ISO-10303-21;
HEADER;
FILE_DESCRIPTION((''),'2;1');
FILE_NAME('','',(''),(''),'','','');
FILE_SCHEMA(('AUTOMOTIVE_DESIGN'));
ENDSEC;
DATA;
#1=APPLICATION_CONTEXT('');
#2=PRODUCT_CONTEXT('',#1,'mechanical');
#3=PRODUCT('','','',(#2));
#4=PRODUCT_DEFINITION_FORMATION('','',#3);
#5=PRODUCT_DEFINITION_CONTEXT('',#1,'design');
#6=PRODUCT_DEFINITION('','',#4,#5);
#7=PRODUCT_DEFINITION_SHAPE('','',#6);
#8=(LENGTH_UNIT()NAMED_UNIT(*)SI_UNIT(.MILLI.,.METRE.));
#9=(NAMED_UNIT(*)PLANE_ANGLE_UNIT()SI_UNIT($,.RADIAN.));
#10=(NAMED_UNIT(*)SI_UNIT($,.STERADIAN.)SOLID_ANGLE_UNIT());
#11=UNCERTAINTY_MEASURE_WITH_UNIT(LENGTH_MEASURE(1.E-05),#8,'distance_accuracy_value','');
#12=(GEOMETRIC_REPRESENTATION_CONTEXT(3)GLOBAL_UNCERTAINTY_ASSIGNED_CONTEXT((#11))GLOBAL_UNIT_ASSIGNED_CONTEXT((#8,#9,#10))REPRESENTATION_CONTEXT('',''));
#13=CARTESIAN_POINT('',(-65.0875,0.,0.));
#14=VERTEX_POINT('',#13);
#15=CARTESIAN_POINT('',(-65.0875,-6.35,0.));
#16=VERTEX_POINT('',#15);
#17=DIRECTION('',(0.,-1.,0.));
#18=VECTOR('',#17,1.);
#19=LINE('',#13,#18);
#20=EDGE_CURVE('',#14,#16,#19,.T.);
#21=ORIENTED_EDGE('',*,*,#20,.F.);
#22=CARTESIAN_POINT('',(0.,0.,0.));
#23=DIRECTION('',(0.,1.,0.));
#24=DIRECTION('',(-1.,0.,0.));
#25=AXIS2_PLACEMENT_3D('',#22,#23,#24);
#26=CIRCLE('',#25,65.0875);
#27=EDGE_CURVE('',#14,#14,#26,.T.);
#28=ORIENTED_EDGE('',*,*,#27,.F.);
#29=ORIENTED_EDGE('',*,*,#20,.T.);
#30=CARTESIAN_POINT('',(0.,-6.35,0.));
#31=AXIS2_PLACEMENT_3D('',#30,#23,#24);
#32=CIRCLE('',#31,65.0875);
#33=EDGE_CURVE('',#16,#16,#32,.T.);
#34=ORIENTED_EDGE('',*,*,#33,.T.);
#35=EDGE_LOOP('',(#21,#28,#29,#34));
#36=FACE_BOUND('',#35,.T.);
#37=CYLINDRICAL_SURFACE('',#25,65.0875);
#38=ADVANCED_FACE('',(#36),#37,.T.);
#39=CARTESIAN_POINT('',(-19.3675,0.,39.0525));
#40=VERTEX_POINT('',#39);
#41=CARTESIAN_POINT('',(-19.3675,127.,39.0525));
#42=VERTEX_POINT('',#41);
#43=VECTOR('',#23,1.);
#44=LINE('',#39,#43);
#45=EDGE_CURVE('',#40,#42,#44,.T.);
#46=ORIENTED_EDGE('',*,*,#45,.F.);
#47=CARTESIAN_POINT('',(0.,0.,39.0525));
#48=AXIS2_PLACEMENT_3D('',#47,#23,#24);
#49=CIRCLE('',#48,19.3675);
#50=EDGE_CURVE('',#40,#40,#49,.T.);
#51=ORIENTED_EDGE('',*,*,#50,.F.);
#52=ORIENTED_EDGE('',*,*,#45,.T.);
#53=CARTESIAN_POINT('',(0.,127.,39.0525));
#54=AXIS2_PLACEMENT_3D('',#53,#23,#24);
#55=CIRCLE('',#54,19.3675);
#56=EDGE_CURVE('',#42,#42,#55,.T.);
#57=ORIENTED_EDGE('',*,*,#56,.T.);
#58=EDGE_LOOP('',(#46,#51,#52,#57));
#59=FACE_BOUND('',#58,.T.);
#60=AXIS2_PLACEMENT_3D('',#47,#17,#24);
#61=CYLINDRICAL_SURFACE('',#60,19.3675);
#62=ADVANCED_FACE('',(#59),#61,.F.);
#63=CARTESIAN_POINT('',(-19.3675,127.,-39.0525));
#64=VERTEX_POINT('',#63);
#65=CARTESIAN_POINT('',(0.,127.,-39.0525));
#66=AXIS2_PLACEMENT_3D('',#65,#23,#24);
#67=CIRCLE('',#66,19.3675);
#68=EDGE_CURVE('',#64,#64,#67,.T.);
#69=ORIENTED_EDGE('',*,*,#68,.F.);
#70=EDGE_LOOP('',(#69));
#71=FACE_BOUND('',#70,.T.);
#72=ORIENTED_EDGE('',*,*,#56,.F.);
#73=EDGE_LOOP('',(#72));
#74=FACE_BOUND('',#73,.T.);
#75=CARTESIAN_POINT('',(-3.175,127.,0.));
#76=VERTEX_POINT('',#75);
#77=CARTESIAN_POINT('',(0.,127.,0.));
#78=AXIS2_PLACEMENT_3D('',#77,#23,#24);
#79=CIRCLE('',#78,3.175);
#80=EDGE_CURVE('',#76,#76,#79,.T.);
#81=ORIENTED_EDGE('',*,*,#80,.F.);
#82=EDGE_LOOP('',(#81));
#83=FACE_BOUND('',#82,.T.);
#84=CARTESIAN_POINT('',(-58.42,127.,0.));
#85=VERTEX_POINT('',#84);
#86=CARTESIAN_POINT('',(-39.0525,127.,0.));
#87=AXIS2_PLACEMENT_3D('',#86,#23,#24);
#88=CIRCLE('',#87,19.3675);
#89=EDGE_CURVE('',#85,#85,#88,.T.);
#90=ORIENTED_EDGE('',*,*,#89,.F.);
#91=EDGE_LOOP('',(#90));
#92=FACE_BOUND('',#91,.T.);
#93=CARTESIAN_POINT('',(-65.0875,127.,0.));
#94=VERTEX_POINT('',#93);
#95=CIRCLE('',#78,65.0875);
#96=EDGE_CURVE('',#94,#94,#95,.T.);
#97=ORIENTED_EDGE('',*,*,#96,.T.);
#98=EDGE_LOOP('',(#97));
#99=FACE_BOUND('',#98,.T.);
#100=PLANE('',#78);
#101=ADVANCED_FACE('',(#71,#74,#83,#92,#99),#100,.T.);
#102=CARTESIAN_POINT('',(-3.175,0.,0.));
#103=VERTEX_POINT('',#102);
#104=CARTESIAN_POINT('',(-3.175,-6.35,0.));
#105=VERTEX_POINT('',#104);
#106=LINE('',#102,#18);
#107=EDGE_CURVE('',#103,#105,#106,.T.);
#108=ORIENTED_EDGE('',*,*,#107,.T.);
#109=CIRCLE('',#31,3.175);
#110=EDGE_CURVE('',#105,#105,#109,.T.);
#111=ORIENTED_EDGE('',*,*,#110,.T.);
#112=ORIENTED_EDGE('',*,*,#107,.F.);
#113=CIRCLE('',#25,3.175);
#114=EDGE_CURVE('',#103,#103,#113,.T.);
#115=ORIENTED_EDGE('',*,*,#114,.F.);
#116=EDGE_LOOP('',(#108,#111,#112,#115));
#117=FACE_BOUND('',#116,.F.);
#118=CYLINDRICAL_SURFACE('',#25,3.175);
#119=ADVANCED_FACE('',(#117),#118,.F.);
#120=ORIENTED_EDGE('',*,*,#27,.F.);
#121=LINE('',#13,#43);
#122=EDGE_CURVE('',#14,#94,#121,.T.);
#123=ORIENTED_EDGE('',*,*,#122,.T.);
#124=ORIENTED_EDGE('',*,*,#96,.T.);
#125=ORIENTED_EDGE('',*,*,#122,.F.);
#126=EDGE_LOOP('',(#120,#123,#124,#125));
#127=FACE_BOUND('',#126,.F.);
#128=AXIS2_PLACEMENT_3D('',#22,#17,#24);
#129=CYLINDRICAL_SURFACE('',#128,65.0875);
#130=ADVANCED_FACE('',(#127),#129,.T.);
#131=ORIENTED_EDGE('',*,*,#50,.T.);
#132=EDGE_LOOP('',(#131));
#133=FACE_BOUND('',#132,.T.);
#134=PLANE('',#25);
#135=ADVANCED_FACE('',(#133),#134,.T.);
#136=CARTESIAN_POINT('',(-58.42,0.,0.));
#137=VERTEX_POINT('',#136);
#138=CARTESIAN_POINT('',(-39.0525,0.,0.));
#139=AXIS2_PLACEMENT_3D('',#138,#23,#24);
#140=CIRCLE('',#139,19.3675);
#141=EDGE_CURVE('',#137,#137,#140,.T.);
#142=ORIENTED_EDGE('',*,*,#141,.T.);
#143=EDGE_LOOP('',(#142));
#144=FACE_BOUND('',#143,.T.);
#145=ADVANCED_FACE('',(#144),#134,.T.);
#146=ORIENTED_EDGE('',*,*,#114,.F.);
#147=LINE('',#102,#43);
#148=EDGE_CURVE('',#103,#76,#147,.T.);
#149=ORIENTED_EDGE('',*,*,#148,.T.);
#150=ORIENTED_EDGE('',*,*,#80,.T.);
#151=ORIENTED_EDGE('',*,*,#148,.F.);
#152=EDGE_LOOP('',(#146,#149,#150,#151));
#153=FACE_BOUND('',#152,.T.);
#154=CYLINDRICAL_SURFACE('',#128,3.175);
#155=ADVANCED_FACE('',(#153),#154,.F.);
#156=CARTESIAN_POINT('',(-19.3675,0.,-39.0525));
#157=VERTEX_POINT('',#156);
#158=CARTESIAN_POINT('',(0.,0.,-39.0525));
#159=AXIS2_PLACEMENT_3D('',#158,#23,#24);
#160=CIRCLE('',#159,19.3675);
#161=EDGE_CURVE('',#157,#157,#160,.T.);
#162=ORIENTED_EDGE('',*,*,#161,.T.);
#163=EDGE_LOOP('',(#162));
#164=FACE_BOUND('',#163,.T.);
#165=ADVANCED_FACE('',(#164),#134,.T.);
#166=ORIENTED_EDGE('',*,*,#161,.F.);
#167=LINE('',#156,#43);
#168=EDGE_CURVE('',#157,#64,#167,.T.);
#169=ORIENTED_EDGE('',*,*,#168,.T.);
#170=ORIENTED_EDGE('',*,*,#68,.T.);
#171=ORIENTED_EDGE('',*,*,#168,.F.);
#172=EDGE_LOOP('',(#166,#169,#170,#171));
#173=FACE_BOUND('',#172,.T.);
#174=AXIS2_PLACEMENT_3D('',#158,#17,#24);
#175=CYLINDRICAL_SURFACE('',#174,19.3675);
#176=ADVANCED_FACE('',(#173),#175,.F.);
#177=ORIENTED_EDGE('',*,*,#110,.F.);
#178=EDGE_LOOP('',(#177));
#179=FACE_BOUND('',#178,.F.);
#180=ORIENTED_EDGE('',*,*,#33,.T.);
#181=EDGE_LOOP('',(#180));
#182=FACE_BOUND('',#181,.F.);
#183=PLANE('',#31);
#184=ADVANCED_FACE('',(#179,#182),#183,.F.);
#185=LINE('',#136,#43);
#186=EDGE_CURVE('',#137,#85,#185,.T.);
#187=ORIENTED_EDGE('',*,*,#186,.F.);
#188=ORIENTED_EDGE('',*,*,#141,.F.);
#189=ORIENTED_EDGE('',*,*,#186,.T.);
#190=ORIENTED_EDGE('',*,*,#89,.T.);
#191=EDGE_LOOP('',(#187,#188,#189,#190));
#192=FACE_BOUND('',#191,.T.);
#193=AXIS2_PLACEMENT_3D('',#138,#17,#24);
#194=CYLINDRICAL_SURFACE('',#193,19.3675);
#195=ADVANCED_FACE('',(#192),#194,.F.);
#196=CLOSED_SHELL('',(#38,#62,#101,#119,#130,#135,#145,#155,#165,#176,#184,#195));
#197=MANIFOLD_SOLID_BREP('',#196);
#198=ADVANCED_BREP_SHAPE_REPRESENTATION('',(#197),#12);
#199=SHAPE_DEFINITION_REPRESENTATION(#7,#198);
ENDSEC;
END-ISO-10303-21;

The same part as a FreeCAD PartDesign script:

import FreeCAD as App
import Part
import Sketcher

V = App.Vector
Q = App.Units.Quantity

doc = App.newDocument("Part")
params = doc.addObject("Spreadsheet::Sheet", "Params")
for row, (alias, value) in enumerate([
    ("sketch1_diameter", "0.25 in"),
    ("sketch1_diameter2", "5.125 in"),
    ("sketch1_diameter3", "1.525 in"),
    ("pad1_length", "5 in"),
    ("sketch2_diameter", "0.25 in"),
    ("sketch2_diameter2", "5.125 in"),
    ("pad2_length", "0.25 in"),
], start=1):
    params.set(f"A{row}", alias)
    params.set(f"B{row}", "=" + value)
    params.setAlias(f"B{row}", alias)

body = doc.addObject("PartDesign::Body", "Body")

# Sketch on XZ plane
sketch1 = body.newObject("Sketcher::SketchObject", "Sketch")
sketch1.AttachmentSupport = (doc.getObject("XZ_Plane"), [""])
sketch1.MapMode = "FlatFace"
sketch1.addGeometry([
    Part.Circle(V(0, 0, 0), V(0, 0, 1), 65.0875),  # 0
    Part.Circle(V(0, -39.0525, 0), V(0, 0, 1), 19.3675),  # 1
    Part.Circle(V(0, 0, 0), V(0, 0, 1), 3.175),  # 2
    Part.Circle(V(-39.0525, 0, 0), V(0, 0, 1), 19.3675),  # 3
    Part.Circle(V(0, 39.0525, 0), V(0, 0, 1), 19.3675),  # 4
], False)
sketch1.addConstraint([
    Sketcher.Constraint("Coincident", 0, 3, -1, 1),
    Sketcher.Constraint("Coincident", 2, 3, -1, 1),
    Sketcher.Constraint("Equal", 1, 3),
    Sketcher.Constraint("Equal", 3, 4),
    Sketcher.Constraint("Symmetric", 1, 3, 4, 3, -1, 1),
    Sketcher.Constraint("PointOnObject", 1, 3, -2),
    Sketcher.Constraint("PointOnObject", 3, 3, -1),
    Sketcher.Constraint("Diameter", 2, Q("0.25 in")),
    Sketcher.Constraint("Diameter", 0, Q("5.125 in")),
    Sketcher.Constraint("Diameter", 1, Q("1.525 in")),
    Sketcher.Constraint("DistanceY", 1, 3, -1, 1, Q("1.5375 in")),
    Sketcher.Constraint("DistanceX", 3, 3, -1, 1, Q("1.5375 in")),
])
sketch1.setExpression("Constraints[7]", "Params.sketch1_diameter")
sketch1.setExpression("Constraints[8]", "Params.sketch1_diameter2")
sketch1.setExpression("Constraints[9]", "Params.sketch1_diameter3")
pad1 = body.newObject("PartDesign::Pad", "Pad")
pad1.Profile = sketch1
pad1.setExpression("Length", "Params.pad1_length")
pad1.Reversed = True

# Sketch on XZ plane
sketch2 = body.newObject("Sketcher::SketchObject", "Sketch001")
sketch2.AttachmentSupport = (doc.getObject("XZ_Plane"), [""])
sketch2.MapMode = "FlatFace"
sketch2.addGeometry([
    Part.Circle(V(0, 0, 0), V(0, 0, 1), 65.0875),
    Part.Circle(V(0, 0, 0), V(0, 0, 1), 3.175),
], False)
sketch2.addConstraint([
    Sketcher.Constraint("Coincident", 0, 3, -1, 1),
    Sketcher.Constraint("Coincident", 1, 3, -1, 1),
    Sketcher.Constraint("Diameter", 1, Q("0.25 in")),
    Sketcher.Constraint("Diameter", 0, Q("5.125 in")),
])
sketch2.setExpression("Constraints[2]", "Params.sketch2_diameter")
sketch2.setExpression("Constraints[3]", "Params.sketch2_diameter2")
pad2 = body.newObject("PartDesign::Pad", "Pad001")
pad2.Profile = sketch2
pad2.setExpression("Length", "Params.pad2_length")

doc.recompute()
